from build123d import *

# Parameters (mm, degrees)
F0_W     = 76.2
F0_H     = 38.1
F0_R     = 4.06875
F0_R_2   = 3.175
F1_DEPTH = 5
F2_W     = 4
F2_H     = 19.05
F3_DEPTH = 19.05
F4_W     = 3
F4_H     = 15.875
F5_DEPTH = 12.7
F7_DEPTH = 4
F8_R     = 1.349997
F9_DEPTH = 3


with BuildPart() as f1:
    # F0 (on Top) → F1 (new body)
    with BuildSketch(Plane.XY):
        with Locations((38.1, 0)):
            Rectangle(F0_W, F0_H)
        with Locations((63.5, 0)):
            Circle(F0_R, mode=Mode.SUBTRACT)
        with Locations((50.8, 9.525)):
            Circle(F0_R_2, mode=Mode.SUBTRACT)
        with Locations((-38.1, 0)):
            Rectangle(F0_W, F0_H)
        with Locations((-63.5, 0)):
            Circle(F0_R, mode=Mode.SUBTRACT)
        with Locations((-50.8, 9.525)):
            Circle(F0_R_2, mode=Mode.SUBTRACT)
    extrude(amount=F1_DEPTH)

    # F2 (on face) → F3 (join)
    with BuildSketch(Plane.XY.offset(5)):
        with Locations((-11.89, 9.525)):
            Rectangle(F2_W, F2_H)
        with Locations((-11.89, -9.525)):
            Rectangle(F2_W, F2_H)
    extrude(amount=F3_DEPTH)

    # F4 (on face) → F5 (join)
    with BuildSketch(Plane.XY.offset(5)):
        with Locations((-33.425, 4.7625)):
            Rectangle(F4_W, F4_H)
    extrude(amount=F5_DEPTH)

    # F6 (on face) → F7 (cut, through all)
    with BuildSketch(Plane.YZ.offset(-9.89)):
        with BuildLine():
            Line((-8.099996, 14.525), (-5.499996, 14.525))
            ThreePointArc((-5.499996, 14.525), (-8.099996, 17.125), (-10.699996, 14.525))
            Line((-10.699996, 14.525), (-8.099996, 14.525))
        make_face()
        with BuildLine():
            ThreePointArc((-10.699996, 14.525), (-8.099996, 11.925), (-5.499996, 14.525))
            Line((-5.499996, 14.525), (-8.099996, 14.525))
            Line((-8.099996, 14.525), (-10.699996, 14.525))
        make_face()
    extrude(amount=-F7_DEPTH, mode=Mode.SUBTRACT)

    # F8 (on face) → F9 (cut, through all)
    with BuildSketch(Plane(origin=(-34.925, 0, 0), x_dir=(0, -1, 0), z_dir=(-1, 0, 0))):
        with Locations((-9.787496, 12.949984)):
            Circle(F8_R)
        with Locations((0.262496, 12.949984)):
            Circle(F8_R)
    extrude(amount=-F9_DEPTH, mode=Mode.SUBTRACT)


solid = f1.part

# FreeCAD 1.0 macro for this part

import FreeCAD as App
import Part
import Sketcher
Q = App.Units.Quantity

doc = App.newDocument("Part")
body = doc.addObject("PartDesign::Body", "Body")

sketch1 = doc.addObject("Sketcher::SketchObject", "Sketch")
body.addObject(sketch1)
sketch1.AttachmentSupport = (doc.XY_Plane, [""])
sketch1.MapMode = "FlatFace"
sketch1.addGeometry([
    Part.LineSegment(App.Vector(76.2, -19.1, 0), App.Vector(76.2, 19.1, 0)),
    Part.LineSegment(App.Vector(76.2, 19.1, 0), App.Vector(-76.2, 19.1, 0)),
    Part.LineSegment(App.Vector(-76.2, 19.1, 0), App.Vector(-76.2, -19.1, 0)),
    Part.LineSegment(App.Vector(-76.2, -19.1, 0), App.Vector(76.2, -19.1, 0)),
    Part.Circle(App.Vector(-63.5, 0, 0), App.Vector(0, 0, 1), 4.1),
    Part.Circle(App.Vector(63.5, 0, 0), App.Vector(0, 0, 1), 4.1),
    Part.Circle(App.Vector(-50.8, 9.5, 0), App.Vector(0, 0, 1), 3.2),
    Part.Circle(App.Vector(50.8, 9.5, 0), App.Vector(0, 0, 1), 3.2),
], False)
sketch1.addConstraint([
    Sketcher.Constraint("Coincident", 0, 2, 1, 1),
    Sketcher.Constraint("Coincident", 1, 2, 2, 1),
    Sketcher.Constraint("Coincident", 2, 2, 3, 1),
    Sketcher.Constraint("Coincident", 3, 2, 0, 1),
    Sketcher.Constraint("Vertical", 0),
    Sketcher.Constraint("Horizontal", 1),
    Sketcher.Constraint("Vertical", 2),
    Sketcher.Constraint("Horizontal", 3),
    Sketcher.Constraint("Equal", 4, 5),
    Sketcher.Constraint("Equal", 6, 7),
    Sketcher.Constraint("Symmetric", 4, 3, 5, 3, -1, 1),
    Sketcher.Constraint("Symmetric", 0, 2, 2, 2, -1, 1),
    Sketcher.Constraint("Symmetric", 6, 3, 7, 3, -2),
    Sketcher.Constraint("PointOnObject", 4, 3, -1),
    Sketcher.Constraint("Diameter", 6, Q("0.25 in")),
    Sketcher.Constraint("DistanceX", 1, 2, 1, 1, Q("6 in")),
    Sketcher.Constraint("DistanceY", 0, 1, 0, 2, Q("1.5 in")),
    Sketcher.Constraint("DistanceX", 6, 3, -1, 1, Q("2 in")),
    Sketcher.Constraint("DistanceX", 4, 3, 5, 3, Q("5 in")),
    Sketcher.Constraint("Diameter", 4, Q("8.1375 mm")),
    Sketcher.Constraint("DistanceY", -1, 1, 6, 3, Q("0.375 in")),
])
pad1 = doc.addObject("PartDesign::Pad", "Pad")
body.addObject(pad1)
pad1.Profile = sketch1
pad1.Length = 5

sketch2 = doc.addObject("Sketcher::SketchObject", "Sketch001")
body.addObject(sketch2)
sketch2.AttachmentSupport = (doc.XY_Plane, [""])
sketch2.MapMode = "FlatFace"
sketch2.AttachmentOffset = App.Placement(App.Vector(0, 0, 5), App.Rotation())
sketch2.addGeometry([
    Part.LineSegment(App.Vector(-13.9, 19.1, 0), App.Vector(-13.9, -19.1, 0)),
    Part.LineSegment(App.Vector(-13.9, -19.1, 0), App.Vector(-9.9, -19.1, 0)),
    Part.LineSegment(App.Vector(-9.9, -19.1, 0), App.Vector(-9.9, 19.1, 0)),
    Part.LineSegment(App.Vector(-9.9, 19.1, 0), App.Vector(-13.9, 19.1, 0)),
], False)
sketch2.addConstraint([
    Sketcher.Constraint("Coincident", 0, 2, 1, 1),
    Sketcher.Constraint("Coincident", 1, 2, 2, 1),
    Sketcher.Constraint("Coincident", 2, 2, 3, 1),
    Sketcher.Constraint("Coincident", 3, 2, 0, 1),
    Sketcher.Constraint("Vertical", 0),
    Sketcher.Constraint("Horizontal", 1),
    Sketcher.Constraint("Vertical", 2),
    Sketcher.Constraint("Horizontal", 3),
    Sketcher.Constraint("DistanceY", 0, 2, 0, 1, Q("1.5 in")),
    Sketcher.Constraint("DistanceY", 0, 2, -1, 1, Q("0.75 in")),
    Sketcher.Constraint("DistanceX", 1, 1, 1, 2, Q("4 mm")),
    Sketcher.Constraint("DistanceX", 0, 2, -1, 1, Q("13.89 mm")),
])
pad2 = doc.addObject("PartDesign::Pad", "Pad001")
body.addObject(pad2)
pad2.Profile = sketch2
pad2.Length = Q("0.75 in")

sketch3 = doc.addObject("Sketcher::SketchObject", "Sketch002")
body.addObject(sketch3)
sketch3.AttachmentSupport = (doc.XY_Plane, [""])
sketch3.MapMode = "FlatFace"
sketch3.AttachmentOffset = App.Placement(App.Vector(0, 0, 5), App.Rotation())
sketch3.addGeometry([
    Part.LineSegment(App.Vector(-34.9, 12.7, 0), App.Vector(-34.9, -3.2, 0)),
    Part.LineSegment(App.Vector(-34.9, -3.2, 0), App.Vector(-31.9, -3.2, 0)),
    Part.LineSegment(App.Vector(-31.9, -3.2, 0), App.Vector(-31.9, 12.7, 0)),
    Part.LineSegment(App.Vector(-31.9, 12.7, 0), App.Vector(-34.9, 12.7, 0)),
], False)
sketch3.addConstraint([
    Sketcher.Constraint("Coincident", 0, 2, 1, 1),
    Sketcher.Constraint("Coincident", 1, 2, 2, 1),
    Sketcher.Constraint("Coincident", 2, 2, 3, 1),
    Sketcher.Constraint("Coincident", 3, 2, 0, 1),
    Sketcher.Constraint("Vertical", 0),
    Sketcher.Constraint("Horizontal", 1),
    Sketcher.Constraint("Vertical", 2),
    Sketcher.Constraint("Horizontal", 3),
    Sketcher.Constraint("DistanceY", -1, 1, 2, 2, Q("0.5 in")),
    Sketcher.Constraint("DistanceY", 0, 2, 0, 1, Q("0.625 in")),
    Sketcher.Constraint("DistanceX", 0, 2, -1, 1, Q("1.375 in")),
    Sketcher.Constraint("DistanceX", 1, 1, 1, 2, Q("3 mm")),
])
pad3 = doc.addObject("PartDesign::Pad", "Pad002")
body.addObject(pad3)
pad3.Profile = sketch3
pad3.Length = Q("0.5 in")

sketch4 = doc.addObject("Sketcher::SketchObject", "Sketch003")
body.addObject(sketch4)
sketch4.AttachmentSupport = (doc.YZ_Plane, [""])
sketch4.MapMode = "FlatFace"
sketch4.AttachmentOffset = App.Placement(App.Vector(0, 0, -9.89), App.Rotation())
sketch4.addGeometry(Part.Circle(App.Vector(-8.1, 14.5, 0), App.Vector(0, 0, 1), 2.6), False)
sketch4.addConstraint([
    Sketcher.Constraint("Diameter", 0, Q("5.2 mm")),
    Sketcher.Constraint("DistanceY", -1, 1, 0, 3, Q("14.525 mm")),
    Sketcher.Constraint("DistanceX", 0, 3, -1, 1, Q("8.099996 mm")),
])
pocket1 = doc.addObject("PartDesign::Pocket", "Pocket")
body.addObject(pocket1)
pocket1.Profile = sketch4
pocket1.Type = "ThroughAll"

sketch5 = doc.addObject("Sketcher::SketchObject", "Sketch004")
body.addObject(sketch5)
sketch5.AttachmentSupport = (doc.YZ_Plane, [""])
sketch5.MapMode = "FlatFace"
sketch5.AttachmentOffset = App.Placement(App.Vector(0, 0, -1.375 * 25.4), App.Rotation())
sketch5.addGeometry([
    Part.Circle(App.Vector(9.8, 12.9, 0), App.Vector(0, 0, 1), 1.3),
    Part.Circle(App.Vector(-0.3, 12.9, 0), App.Vector(0, 0, 1), 1.3),
], False)
sketch5.addConstraint([
    Sketcher.Constraint("Equal", 0, 1),
    Sketcher.Constraint("Horizontal", 0, 3, 1, 3),
    Sketcher.Constraint("Diameter", 0, Q("2.699994 mm")),
    Sketcher.Constraint("DistanceX", -1, 1, 0, 3, Q("9.787496 mm")),
    Sketcher.Constraint("DistanceY", -1, 1, 0, 3, Q("12.949984 mm")),
    Sketcher.Constraint("DistanceX", 1, 3, -1, 1, Q("0.262496 mm")),
])
pocket2 = doc.addObject("PartDesign::Pocket", "Pocket001")
body.addObject(pocket2)
pocket2.Profile = sketch5
pocket2.Length = 3
pocket2.Reversed = True

doc.recompute()
